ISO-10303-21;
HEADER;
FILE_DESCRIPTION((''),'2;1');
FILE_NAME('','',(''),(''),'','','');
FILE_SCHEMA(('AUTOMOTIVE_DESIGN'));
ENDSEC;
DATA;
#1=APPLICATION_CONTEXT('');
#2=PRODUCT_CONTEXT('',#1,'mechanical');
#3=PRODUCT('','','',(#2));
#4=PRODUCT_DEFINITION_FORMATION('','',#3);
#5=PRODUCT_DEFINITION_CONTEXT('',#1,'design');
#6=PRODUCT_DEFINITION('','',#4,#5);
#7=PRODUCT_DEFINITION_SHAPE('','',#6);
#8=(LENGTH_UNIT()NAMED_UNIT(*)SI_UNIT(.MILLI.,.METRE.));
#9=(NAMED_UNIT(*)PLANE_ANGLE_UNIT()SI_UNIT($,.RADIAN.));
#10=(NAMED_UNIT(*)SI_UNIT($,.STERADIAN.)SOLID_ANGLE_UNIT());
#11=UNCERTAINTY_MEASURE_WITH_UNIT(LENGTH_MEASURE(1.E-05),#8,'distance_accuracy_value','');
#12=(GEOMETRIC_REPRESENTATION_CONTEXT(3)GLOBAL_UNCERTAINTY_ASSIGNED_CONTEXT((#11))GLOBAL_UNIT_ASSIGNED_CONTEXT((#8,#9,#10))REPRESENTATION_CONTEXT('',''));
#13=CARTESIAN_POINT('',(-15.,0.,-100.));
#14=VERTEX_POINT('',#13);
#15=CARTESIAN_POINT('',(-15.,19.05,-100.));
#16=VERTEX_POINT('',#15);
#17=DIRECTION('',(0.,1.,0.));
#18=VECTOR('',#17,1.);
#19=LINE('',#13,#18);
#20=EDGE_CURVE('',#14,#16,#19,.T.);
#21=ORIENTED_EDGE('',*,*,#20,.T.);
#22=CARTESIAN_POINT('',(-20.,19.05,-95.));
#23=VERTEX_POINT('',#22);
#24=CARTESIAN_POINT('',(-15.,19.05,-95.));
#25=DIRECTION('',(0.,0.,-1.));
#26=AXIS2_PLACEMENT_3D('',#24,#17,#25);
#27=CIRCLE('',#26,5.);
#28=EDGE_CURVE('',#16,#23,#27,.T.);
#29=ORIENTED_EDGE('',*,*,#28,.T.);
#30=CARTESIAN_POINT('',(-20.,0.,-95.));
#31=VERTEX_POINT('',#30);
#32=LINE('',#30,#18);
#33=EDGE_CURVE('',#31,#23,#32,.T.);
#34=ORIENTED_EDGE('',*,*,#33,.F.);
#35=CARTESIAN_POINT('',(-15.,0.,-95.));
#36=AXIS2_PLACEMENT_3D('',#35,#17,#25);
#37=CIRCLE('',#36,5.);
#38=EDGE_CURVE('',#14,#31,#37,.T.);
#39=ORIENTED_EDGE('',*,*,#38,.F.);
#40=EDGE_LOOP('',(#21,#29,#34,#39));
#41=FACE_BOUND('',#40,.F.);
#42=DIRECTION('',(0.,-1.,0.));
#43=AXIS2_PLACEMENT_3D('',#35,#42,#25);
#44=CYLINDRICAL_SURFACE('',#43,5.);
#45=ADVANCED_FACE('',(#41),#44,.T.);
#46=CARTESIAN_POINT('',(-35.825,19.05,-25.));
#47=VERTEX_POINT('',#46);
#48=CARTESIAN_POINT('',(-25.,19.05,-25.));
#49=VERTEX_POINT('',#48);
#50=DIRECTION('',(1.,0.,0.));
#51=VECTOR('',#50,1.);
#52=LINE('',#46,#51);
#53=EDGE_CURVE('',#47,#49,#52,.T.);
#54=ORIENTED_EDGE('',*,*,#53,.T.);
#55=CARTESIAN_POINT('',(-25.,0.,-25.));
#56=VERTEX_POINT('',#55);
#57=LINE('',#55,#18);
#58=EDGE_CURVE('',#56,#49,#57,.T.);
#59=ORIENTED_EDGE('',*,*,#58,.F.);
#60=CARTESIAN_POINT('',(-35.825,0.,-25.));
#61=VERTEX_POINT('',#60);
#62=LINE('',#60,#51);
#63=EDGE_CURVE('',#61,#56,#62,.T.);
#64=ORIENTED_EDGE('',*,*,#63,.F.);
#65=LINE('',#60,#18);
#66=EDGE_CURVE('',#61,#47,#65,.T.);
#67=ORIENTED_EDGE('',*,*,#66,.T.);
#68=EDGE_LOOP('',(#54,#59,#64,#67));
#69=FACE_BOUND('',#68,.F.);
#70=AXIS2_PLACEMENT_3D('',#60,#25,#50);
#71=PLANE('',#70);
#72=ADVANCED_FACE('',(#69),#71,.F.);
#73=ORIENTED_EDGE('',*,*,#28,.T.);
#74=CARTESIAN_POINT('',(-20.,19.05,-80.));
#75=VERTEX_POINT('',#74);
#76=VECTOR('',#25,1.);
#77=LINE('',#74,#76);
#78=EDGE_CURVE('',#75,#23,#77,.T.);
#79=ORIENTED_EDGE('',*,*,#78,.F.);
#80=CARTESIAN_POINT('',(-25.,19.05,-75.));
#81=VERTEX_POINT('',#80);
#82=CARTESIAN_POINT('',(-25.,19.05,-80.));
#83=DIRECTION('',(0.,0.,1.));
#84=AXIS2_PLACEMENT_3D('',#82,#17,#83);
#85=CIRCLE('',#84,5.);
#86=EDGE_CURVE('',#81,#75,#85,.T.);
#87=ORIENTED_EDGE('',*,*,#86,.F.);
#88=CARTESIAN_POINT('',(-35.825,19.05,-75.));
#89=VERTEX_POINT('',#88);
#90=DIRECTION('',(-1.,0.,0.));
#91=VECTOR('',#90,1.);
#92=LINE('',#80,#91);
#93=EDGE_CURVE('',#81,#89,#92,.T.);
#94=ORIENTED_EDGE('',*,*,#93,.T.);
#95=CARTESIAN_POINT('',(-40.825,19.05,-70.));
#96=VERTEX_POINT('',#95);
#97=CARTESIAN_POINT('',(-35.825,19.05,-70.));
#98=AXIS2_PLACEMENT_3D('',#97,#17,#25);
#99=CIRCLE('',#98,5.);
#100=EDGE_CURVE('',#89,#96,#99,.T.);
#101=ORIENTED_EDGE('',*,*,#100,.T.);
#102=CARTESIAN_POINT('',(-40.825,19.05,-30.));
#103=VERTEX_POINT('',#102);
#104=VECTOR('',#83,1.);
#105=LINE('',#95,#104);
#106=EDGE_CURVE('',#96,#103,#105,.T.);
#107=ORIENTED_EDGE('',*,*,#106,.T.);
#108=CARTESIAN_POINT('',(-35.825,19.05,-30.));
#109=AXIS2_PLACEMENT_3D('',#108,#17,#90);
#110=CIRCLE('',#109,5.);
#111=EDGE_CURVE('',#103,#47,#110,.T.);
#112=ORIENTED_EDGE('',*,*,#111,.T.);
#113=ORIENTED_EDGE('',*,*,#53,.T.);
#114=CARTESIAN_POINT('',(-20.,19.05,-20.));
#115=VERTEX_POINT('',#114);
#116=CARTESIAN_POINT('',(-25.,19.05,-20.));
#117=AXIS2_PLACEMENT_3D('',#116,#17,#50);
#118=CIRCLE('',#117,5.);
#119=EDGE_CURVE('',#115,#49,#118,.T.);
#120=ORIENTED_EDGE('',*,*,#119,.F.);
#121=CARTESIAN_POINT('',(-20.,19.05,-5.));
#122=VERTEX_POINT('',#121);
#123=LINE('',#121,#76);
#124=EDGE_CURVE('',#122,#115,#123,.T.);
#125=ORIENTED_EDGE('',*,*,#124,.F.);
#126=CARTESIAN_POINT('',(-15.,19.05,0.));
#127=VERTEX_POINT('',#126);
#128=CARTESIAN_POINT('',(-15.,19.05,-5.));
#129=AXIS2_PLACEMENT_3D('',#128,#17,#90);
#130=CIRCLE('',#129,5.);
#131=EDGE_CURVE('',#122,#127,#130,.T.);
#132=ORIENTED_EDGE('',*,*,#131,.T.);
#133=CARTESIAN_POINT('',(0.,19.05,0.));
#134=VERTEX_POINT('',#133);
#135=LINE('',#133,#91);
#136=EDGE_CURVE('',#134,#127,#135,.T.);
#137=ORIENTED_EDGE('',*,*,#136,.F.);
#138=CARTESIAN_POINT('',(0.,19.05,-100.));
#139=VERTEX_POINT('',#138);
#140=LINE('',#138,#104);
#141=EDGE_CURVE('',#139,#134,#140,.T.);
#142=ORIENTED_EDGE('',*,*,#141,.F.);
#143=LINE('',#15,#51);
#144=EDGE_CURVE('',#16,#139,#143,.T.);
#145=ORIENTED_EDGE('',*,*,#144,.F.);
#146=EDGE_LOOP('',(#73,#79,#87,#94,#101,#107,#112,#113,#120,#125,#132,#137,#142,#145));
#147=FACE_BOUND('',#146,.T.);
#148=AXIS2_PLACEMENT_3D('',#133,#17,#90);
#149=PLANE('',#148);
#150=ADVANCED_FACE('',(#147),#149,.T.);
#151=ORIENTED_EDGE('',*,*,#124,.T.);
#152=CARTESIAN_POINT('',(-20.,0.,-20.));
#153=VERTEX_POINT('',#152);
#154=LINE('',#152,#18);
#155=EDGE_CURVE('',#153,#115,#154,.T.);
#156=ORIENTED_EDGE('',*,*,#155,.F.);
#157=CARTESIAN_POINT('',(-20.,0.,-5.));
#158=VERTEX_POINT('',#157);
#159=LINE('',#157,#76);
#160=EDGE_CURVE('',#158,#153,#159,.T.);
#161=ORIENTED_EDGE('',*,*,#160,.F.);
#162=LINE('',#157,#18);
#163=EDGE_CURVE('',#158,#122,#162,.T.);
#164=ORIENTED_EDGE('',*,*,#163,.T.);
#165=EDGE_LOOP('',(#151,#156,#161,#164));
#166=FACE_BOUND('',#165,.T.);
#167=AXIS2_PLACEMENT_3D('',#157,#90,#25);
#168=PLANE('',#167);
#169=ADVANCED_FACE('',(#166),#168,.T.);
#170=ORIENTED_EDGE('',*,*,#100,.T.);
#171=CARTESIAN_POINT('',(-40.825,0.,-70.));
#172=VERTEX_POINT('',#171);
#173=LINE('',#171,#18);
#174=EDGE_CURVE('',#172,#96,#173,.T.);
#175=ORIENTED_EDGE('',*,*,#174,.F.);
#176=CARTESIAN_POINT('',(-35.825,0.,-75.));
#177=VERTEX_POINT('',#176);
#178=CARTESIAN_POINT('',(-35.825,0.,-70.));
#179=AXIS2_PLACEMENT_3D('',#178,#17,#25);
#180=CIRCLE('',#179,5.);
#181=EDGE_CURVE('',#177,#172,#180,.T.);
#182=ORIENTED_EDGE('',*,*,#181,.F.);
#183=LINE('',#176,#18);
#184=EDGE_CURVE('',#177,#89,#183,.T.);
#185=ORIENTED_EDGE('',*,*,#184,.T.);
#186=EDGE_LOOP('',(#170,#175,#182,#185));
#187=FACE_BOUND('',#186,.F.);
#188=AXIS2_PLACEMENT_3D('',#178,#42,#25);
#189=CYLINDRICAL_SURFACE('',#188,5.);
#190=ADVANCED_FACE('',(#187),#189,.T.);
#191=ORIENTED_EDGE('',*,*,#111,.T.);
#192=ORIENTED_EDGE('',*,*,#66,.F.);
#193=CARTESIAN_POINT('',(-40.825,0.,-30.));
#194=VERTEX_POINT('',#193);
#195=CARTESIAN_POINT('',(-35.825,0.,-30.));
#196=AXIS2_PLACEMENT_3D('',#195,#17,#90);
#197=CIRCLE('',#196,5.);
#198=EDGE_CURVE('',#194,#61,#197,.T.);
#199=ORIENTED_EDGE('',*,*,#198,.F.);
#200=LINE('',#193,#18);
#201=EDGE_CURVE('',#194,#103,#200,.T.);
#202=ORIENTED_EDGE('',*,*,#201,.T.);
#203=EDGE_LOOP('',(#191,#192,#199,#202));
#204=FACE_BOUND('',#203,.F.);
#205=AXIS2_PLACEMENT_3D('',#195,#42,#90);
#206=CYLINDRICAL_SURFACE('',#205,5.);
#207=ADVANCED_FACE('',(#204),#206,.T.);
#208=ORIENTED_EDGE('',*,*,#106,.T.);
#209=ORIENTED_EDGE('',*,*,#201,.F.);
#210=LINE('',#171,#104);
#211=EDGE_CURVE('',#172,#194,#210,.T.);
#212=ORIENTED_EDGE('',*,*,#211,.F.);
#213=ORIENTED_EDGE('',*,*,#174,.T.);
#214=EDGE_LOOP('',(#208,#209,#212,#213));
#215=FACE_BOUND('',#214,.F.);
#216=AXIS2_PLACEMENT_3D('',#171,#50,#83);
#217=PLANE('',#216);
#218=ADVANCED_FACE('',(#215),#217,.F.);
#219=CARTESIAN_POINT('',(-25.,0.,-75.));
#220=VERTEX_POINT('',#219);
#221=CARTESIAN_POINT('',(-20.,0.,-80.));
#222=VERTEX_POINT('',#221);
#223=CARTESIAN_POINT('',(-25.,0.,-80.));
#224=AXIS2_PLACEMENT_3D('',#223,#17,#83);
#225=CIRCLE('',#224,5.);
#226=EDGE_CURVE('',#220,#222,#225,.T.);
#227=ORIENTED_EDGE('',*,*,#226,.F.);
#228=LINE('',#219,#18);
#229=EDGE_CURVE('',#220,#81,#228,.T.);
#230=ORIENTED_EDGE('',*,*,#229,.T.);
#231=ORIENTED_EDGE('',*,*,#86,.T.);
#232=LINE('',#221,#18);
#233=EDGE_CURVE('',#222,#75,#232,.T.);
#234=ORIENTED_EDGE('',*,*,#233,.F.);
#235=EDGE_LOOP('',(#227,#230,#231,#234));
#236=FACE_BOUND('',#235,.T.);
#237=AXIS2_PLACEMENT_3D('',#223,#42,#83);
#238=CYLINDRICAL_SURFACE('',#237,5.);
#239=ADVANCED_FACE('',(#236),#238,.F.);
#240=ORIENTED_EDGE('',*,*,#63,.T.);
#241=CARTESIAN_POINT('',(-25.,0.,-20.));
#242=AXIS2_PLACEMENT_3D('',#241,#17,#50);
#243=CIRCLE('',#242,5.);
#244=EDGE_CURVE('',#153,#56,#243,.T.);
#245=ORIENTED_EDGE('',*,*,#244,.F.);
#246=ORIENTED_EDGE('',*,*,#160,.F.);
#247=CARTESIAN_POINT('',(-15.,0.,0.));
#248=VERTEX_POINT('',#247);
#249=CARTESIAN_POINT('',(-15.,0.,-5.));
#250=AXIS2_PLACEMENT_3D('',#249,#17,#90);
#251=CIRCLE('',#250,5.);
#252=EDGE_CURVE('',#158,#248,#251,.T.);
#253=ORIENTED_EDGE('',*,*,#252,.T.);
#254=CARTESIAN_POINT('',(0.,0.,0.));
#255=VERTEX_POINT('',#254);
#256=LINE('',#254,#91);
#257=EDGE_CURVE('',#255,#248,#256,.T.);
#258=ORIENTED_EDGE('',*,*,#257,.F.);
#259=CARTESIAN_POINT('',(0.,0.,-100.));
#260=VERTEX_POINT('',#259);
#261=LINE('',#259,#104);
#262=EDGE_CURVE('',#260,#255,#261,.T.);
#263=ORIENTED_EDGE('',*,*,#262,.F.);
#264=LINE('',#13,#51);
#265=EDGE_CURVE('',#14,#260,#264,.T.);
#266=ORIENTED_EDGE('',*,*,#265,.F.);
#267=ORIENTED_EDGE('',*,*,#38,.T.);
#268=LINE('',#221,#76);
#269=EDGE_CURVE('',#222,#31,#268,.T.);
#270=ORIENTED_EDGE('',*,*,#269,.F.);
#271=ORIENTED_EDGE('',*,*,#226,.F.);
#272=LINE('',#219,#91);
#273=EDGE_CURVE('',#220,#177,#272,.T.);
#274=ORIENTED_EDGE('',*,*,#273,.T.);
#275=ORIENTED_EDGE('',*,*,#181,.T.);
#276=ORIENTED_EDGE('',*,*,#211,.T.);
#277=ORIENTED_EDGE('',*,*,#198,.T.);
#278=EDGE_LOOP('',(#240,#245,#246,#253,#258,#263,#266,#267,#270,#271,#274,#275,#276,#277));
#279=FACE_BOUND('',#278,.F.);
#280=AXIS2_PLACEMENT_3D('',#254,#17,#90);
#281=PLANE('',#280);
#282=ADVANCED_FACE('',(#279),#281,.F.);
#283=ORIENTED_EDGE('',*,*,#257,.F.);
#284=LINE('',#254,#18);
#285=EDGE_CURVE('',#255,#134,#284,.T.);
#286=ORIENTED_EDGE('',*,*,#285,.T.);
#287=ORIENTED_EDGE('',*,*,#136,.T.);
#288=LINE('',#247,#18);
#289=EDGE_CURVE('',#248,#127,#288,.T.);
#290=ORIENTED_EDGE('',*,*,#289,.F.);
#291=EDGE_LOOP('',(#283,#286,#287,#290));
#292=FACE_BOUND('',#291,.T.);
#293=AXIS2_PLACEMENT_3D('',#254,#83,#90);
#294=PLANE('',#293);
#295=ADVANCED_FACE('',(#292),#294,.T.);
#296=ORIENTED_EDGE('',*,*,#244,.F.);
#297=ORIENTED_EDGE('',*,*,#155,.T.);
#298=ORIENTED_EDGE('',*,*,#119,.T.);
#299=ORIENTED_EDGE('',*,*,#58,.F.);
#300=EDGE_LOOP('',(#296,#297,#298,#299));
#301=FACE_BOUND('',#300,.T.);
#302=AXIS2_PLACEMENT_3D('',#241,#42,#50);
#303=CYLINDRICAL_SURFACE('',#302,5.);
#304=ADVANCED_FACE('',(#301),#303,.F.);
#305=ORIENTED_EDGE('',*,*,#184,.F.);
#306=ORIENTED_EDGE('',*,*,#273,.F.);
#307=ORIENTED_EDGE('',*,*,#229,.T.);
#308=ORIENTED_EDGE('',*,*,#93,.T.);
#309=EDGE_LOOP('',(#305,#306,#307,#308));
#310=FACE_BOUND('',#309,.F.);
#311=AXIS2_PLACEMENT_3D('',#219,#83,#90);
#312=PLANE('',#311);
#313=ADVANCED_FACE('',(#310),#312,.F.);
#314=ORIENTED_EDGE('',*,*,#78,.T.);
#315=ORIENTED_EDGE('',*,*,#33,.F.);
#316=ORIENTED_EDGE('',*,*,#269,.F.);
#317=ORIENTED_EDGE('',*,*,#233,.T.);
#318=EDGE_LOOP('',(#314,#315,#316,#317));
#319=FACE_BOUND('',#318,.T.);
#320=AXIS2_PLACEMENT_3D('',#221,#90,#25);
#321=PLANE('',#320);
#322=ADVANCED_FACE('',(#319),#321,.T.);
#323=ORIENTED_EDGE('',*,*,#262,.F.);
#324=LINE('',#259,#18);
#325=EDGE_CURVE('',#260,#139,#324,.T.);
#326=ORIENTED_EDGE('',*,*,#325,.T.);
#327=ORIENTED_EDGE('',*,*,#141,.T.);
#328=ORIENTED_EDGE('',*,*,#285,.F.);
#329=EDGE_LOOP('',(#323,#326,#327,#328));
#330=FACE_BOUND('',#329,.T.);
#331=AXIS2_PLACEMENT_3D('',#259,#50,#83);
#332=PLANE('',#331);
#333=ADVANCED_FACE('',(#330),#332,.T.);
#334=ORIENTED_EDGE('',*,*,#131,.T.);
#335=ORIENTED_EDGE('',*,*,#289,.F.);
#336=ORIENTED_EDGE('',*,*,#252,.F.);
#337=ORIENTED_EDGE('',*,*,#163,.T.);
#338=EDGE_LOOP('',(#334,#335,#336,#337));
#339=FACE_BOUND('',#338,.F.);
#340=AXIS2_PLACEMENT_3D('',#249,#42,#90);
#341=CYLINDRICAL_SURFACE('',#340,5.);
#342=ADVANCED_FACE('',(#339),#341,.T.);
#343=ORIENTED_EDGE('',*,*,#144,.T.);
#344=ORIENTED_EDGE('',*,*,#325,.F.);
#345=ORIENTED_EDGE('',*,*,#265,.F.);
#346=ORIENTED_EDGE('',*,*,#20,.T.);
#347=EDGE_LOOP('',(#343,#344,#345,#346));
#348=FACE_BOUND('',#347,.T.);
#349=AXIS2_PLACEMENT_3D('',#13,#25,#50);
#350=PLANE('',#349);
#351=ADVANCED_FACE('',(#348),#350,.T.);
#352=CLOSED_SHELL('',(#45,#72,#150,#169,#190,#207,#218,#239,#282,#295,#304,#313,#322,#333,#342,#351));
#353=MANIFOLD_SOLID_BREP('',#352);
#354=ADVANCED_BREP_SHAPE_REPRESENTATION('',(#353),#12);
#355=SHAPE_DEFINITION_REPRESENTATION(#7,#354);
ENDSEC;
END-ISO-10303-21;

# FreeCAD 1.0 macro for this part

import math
import FreeCAD as App
import Part
import Sketcher
Q = App.Units.Quantity

doc = App.newDocument("Part")
body = doc.addObject("PartDesign::Body", "Body")

# Sketch on XZ plane
sketch1 = doc.addObject("Sketcher::SketchObject", "Sketch")
body.addObject(sketch1)
sketch1.AttachmentSupport = (doc.XZ_Plane, [""])
sketch1.MapMode = "FlatFace"
sketch1.addGeometry(Part.LineSegment(App.Vector(-15, 0, 0), App.Vector(0, 0, 0)), False)
sketch1.addGeometry(Part.LineSegment(App.Vector(0, 0, 0), App.Vector(0, -100, 0)), False)
sketch1.addGeometry(Part.LineSegment(App.Vector(0, -100, 0), App.Vector(-15, -100, 0)), False)
sketch1.addGeometry(Part.ArcOfCircle(Part.Circle(App.Vector(-15, -95, 0), App.Vector(0, 0, 1), 5), math.radians(180), math.radians(270)), False)
sketch1.addGeometry(Part.LineSegment(App.Vector(-20, -95, 0), App.Vector(-20, -80, 0)), False)
sketch1.addGeometry(Part.ArcOfCircle(Part.Circle(App.Vector(-25, -80, 0), App.Vector(0, 0, 1), 5), math.radians(0), math.radians(90)), False)
sketch1.addGeometry(Part.LineSegment(App.Vector(-25, -75, 0), App.Vector(-36, -75, 0)), False)
sketch1.addGeometry(Part.ArcOfCircle(Part.Circle(App.Vector(-36, -70, 0), App.Vector(0, 0, 1), 5), math.radians(180), math.radians(270)), False)
sketch1.addGeometry(Part.LineSegment(App.Vector(-41, -70, 0), App.Vector(-41, -30, 0)), False)
sketch1.addGeometry(Part.ArcOfCircle(Part.Circle(App.Vector(-36, -30, 0), App.Vector(0, 0, 1), 5), math.radians(90), math.radians(180)), False)
sketch1.addGeometry(Part.LineSegment(App.Vector(-36, -25, 0), App.Vector(-25, -25, 0)), False)
sketch1.addGeometry(Part.ArcOfCircle(Part.Circle(App.Vector(-25, -20, 0), App.Vector(0, 0, 1), 5), math.radians(-90), math.radians(0)), False)
sketch1.addGeometry(Part.LineSegment(App.Vector(-20, -20, 0), App.Vector(-20, -5, 0)), False)
sketch1.addGeometry(Part.ArcOfCircle(Part.Circle(App.Vector(-15, -5, 0), App.Vector(0, 0, 1), 5), math.radians(90), math.radians(180)), False)
sketch1.addConstraint(Sketcher.Constraint("Coincident", 0, 2, 1, 1))
sketch1.addConstraint(Sketcher.Constraint("Coincident", 1, 2, 2, 1))
sketch1.addConstraint(Sketcher.Constraint("Tangent", 2, 2, 3, 2))
sketch1.addConstraint(Sketcher.Constraint("Tangent", 3, 1, 4, 1))
sketch1.addConstraint(Sketcher.Constraint("Tangent", 4, 2, 5, 1))
sketch1.addConstraint(Sketcher.Constraint("Tangent", 5, 2, 6, 1))
sketch1.addConstraint(Sketcher.Constraint("Tangent", 6, 2, 7, 2))
sketch1.addConstraint(Sketcher.Constraint("Tangent", 7, 1, 8, 1))
sketch1.addConstraint(Sketcher.Constraint("Tangent", 8, 2, 9, 2))
sketch1.addConstraint(Sketcher.Constraint("Tangent", 9, 1, 10, 1))
sketch1.addConstraint(Sketcher.Constraint("Tangent", 10, 2, 11, 1))
sketch1.addConstraint(Sketcher.Constraint("Tangent", 11, 2, 12, 1))
sketch1.addConstraint(Sketcher.Constraint("Tangent", 12, 2, 13, 2))
sketch1.addConstraint(Sketcher.Constraint("Tangent", 13, 1, 0, 1))
sketch1.addConstraint(Sketcher.Constraint("Horizontal", 0))
sketch1.addConstraint(Sketcher.Constraint("Vertical", 1))
sketch1.addConstraint(Sketcher.Constraint("Horizontal", 2))
sketch1.addConstraint(Sketcher.Constraint("Vertical", 4))
sketch1.addConstraint(Sketcher.Constraint("Horizontal", 6))
sketch1.addConstraint(Sketcher.Constraint("Vertical", 8))
sketch1.addConstraint(Sketcher.Constraint("Horizontal", 10))
sketch1.addConstraint(Sketcher.Constraint("Vertical", 12))
sketch1.addConstraint(Sketcher.Constraint("Coincident", 0, 2, -1, 1))
sketch1.addConstraint(Sketcher.Constraint("Equal", 3, 5))
sketch1.addConstraint(Sketcher.Constraint("Equal", 5, 7))
sketch1.addConstraint(Sketcher.Constraint("Equal", 7, 9))
sketch1.addConstraint(Sketcher.Constraint("Equal", 9, 11))
sketch1.addConstraint(Sketcher.Constraint("Equal", 11, 13))
sketch1.addConstraint(Sketcher.Constraint("Vertical", 5, 3, 11, 3))
sketch1.addConstraint(Sketcher.Constraint("Equal", 2, 4))
sketch1.addConstraint(Sketcher.Constraint("Equal", 4, 12))
sketch1.addConstraint(Sketcher.Constraint("DistanceY", 1, 2, 1, 1, Q("3.937 in")))
sketch1.addConstraint(Sketcher.Constraint("Radius", 3, 5.0))
sketch1.addConstraint(Sketcher.Constraint("DistanceY", 11, 3, -1, 1, Q("0.7874 in")))
sketch1.addConstraint(Sketcher.Constraint("DistanceX", 7, 1, -1, 1, 40.825))
pad1 = doc.addObject("PartDesign::Pad", "Pad")
body.addObject(pad1)
pad1.Profile = sketch1
pad1.Length = Q("0.75 in")
pad1.Reversed = True

doc.recompute()
